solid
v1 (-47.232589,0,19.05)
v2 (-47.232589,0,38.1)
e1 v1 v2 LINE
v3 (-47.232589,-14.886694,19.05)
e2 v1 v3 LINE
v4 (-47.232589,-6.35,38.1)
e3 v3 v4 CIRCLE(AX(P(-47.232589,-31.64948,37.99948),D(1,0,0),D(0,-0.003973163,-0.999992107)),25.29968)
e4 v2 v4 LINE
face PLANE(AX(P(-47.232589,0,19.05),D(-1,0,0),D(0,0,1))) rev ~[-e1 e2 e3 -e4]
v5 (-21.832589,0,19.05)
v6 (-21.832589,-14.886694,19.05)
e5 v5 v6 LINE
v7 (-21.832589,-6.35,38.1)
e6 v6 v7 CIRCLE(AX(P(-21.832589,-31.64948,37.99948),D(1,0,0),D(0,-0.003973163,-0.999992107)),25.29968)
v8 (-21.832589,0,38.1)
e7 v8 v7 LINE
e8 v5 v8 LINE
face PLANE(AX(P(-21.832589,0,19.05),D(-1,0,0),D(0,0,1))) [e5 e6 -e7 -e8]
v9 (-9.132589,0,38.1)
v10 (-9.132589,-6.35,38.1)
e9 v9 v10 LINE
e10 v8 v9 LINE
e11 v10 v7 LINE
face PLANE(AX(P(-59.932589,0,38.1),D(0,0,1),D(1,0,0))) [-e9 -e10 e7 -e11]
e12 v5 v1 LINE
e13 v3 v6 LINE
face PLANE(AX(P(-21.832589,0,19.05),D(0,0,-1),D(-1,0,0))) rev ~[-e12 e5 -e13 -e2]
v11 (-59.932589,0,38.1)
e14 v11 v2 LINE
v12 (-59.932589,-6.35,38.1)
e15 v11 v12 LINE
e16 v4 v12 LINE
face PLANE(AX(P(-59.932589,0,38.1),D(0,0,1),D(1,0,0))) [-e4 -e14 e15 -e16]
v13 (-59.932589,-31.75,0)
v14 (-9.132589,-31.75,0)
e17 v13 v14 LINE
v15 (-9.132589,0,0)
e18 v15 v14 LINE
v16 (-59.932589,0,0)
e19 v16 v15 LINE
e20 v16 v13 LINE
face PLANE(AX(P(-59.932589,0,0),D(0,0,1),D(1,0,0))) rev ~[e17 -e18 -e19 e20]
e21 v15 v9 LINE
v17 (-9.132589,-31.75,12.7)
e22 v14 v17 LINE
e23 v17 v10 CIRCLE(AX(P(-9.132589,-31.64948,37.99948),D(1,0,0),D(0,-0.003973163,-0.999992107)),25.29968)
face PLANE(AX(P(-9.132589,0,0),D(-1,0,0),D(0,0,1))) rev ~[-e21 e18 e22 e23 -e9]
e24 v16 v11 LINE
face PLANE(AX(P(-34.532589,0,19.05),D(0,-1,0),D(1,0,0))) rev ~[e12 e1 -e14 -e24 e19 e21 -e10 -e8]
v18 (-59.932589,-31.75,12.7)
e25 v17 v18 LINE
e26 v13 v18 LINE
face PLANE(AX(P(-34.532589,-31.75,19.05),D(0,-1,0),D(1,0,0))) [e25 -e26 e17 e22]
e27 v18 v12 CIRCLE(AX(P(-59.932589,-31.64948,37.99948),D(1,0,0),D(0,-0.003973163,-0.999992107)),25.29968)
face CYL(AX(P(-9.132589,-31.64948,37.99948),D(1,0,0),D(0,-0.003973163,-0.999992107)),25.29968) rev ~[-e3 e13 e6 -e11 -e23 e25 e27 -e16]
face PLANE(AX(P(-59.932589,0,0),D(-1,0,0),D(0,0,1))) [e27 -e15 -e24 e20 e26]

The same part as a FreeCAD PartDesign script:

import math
import FreeCAD as App
import Part
import Sketcher
Q = App.Units.Quantity


def add_polygon(sketch, points):
    """Adds a closed chain of lines whose ends are joined by coincident constraints."""
    first, n = sketch.GeometryCount, len(points)
    for a, b in zip(points, points[1:] + points[:1]):
        sketch.addGeometry(Part.LineSegment(App.Vector(*a, 0), App.Vector(*b, 0)), False)
    for i in range(n):
        sketch.addConstraint(Sketcher.Constraint("Coincident", first + i, 2, first + (i + 1) % n, 1))

doc = App.newDocument("Part")
body = doc.addObject("PartDesign::Body", "Body")

sketch1 = doc.addObject("Sketcher::SketchObject", "Sketch")
body.addObject(sketch1)
sketch1.AttachmentSupport = (doc.XZ_Plane, [""])
sketch1.MapMode = "FlatFace"
add_polygon(sketch1, [(-60, 38), (-60, 0), (-9, 0), (-9, 38)])
sketch1.addConstraint([
    Sketcher.Constraint("Vertical", 0),
    Sketcher.Constraint("Horizontal", 1),
    Sketcher.Constraint("Vertical", 2),
    Sketcher.Constraint("Horizontal", 3),
    Sketcher.Constraint("PointOnObject", 0, 2, -1),
    Sketcher.Constraint("DistanceX", 1, 1, 1, 2, Q("2 in")),
    Sketcher.Constraint("DistanceY", 0, 2, 0, 1, Q("1.5 in")),
    Sketcher.Constraint("DistanceX", 0, 2, -1, 1, Q("59.932589 mm")),
])
pad1 = doc.addObject("PartDesign::Pad", "Pad")
body.addObject(pad1)
pad1.Profile = sketch1
pad1.Length = Q("1.25 in")

sketch2 = doc.addObject("Sketcher::SketchObject", "Sketch001")
body.addObject(sketch2)
sketch2.AttachmentSupport = (doc.YZ_Plane, [""])
sketch2.MapMode = "FlatFace"
sketch2.AttachmentOffset = App.Placement(App.Vector(0, 0, -9.132589), App.Rotation())
sketch2.addGeometry([
    Part.LineSegment(App.Vector(-32, 38, 0), App.Vector(-32, 13, 0)),
    Part.ArcOfCircle(Part.Circle(App.Vector(-32, 38, 0), App.Vector(0, 0, 1), 25), math.radians(-90), math.radians(0)),
    Part.LineSegment(App.Vector(-6, 38, 0), App.Vector(-32, 38, 0)),
], False)
sketch2.addConstraint([
    Sketcher.Constraint("Coincident", 0, 2, 1, 1),
    Sketcher.Constraint("Coincident", 1, 2, 2, 1),
    Sketcher.Constraint("Coincident", 2, 2, 0, 1),
    Sketcher.Constraint("Vertical", 0),
    Sketcher.Constraint("Horizontal", 2),
    Sketcher.Constraint("Equal", 2, 0),
    Sketcher.Constraint("DistanceX", 2, 2, 2, 1, Q("1 in")),
    Sketcher.Constraint("DistanceY", -1, 1, 0, 2, Q("0.5 in")),
    Sketcher.Constraint("DistanceX", 0, 2, -1, 1, Q("1.25 in")),
    Sketcher.Constraint("Radius", 1, Q("25.29968 mm")),
])
pocket1 = doc.addObject("PartDesign::Pocket", "Pocket")
body.addObject(pocket1)
pocket1.Profile = sketch2
pocket1.Length = Q("2 in")

sketch3 = doc.addObject("Sketcher::SketchObject", "Sketch002")
body.addObject(sketch3)
sketch3.AttachmentSupport = (doc.XZ_Plane, [""])
sketch3.MapMode = "FlatFace"
add_polygon(sketch3, [(-22, 38), (-22, 19), (-47, 19), (-47, 38)])
sketch3.addConstraint([
    Sketcher.Constraint("Vertical", 0),
    Sketcher.Constraint("Horizontal", 1),
    Sketcher.Constraint("Vertical", 2),
    Sketcher.Constraint("Horizontal", 3),
    Sketcher.Constraint("DistanceX", 1, 2, 1, 1, Q("1 in")),
    Sketcher.Constraint("DistanceY", 0, 2, 0, 1, Q("0.75 in")),
    Sketcher.Constraint("DistanceY", -1, 1, 2, 2, Q("1.5 in")),
    Sketcher.Constraint("DistanceX", 0, 2, -1, 1, Q("21.832589 mm")),
])
pocket2 = doc.addObject("PartDesign::Pocket", "Pocket001")
body.addObject(pocket2)
pocket2.Profile = sketch3
pocket2.Length = Q("2 in")
pocket2.Reversed = True

doc.recompute()
